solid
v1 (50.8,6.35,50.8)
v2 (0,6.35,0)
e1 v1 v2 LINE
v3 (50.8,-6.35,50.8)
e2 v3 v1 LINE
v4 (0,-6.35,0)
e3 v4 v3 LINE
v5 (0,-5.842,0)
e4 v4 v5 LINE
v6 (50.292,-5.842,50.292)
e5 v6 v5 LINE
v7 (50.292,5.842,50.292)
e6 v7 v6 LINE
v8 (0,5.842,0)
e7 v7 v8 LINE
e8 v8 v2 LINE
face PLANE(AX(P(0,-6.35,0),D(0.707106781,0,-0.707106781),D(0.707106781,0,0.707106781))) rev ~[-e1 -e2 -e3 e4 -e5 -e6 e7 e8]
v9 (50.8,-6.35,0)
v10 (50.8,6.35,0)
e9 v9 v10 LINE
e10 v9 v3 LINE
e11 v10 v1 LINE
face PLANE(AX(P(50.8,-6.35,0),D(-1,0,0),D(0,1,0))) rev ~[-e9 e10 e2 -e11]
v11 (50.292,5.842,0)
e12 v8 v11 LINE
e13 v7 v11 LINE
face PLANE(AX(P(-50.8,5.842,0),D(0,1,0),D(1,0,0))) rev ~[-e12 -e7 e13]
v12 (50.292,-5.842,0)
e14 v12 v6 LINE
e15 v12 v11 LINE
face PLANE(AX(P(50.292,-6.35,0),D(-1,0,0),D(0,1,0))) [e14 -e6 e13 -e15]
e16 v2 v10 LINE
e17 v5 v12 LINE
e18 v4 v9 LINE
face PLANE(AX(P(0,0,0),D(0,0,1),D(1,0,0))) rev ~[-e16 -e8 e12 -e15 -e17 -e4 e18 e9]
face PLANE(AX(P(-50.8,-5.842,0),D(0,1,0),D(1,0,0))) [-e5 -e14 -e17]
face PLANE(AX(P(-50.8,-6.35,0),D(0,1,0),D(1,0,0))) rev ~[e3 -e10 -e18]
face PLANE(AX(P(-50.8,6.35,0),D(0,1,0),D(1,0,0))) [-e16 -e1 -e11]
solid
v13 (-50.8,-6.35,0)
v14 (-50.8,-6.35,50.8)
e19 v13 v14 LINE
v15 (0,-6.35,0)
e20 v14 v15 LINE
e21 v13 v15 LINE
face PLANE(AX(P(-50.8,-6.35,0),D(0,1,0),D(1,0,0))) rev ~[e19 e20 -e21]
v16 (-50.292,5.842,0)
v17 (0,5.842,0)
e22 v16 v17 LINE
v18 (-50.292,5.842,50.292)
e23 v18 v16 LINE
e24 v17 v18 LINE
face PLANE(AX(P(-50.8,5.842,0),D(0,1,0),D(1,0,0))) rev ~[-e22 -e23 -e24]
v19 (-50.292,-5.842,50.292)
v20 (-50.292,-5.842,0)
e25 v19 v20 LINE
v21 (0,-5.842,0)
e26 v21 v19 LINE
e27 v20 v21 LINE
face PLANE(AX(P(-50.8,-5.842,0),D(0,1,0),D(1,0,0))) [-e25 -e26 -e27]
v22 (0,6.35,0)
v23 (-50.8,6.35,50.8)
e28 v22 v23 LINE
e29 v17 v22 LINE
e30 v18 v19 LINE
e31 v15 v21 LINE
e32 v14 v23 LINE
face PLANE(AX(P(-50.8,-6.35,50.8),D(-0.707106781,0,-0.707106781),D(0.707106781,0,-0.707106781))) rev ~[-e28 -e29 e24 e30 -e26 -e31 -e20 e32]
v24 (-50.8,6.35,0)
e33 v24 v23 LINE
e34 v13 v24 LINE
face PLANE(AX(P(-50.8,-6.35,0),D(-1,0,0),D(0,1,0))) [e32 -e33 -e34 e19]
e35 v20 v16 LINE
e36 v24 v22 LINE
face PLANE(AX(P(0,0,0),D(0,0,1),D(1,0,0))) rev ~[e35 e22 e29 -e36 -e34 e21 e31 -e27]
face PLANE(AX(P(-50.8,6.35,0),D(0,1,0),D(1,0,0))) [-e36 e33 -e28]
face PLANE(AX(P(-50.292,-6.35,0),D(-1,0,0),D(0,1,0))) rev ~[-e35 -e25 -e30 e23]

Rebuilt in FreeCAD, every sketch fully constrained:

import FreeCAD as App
import Part
import Sketcher
from FreeCAD import Vector
Q = App.Units.Quantity


def faces_at(feature, points):
    """Names of the faces that lie closest to the given points."""
    faces = feature.Shape.Faces
    near = lambda p: min(range(len(faces)), key=lambda i: faces[i].distToShape(Part.Vertex(*p))[0])
    return sorted({f"Face{near(p) + 1}" for p in points})

doc = App.newDocument("Part")
body = doc.addObject("PartDesign::Body", "Body")
body.AllowCompound = True

# Sketch on XY plane
sketch1 = body.newObject("Sketcher::SketchObject", "Sketch")
sketch1.AttachmentSupport = (doc.getObject("XY_Plane"), [""])
sketch1.MapMode = "FlatFace"
sketch1.addGeometry(Part.LineSegment(Vector(-51, 6, 0), Vector(-51, -6, 0)), False)
sketch1.addGeometry(Part.LineSegment(Vector(-51, -6, 0), Vector(51, -6, 0)), False)
sketch1.addGeometry(Part.LineSegment(Vector(51, -6, 0), Vector(51, 6, 0)), False)
sketch1.addGeometry(Part.LineSegment(Vector(51, 6, 0), Vector(-51, 6, 0)), False)
sketch1.addConstraint(Sketcher.Constraint("Coincident", 0, 2, 1, 1))
sketch1.addConstraint(Sketcher.Constraint("Coincident", 1, 2, 2, 1))
sketch1.addConstraint(Sketcher.Constraint("Coincident", 2, 2, 3, 1))
sketch1.addConstraint(Sketcher.Constraint("Coincident", 3, 2, 0, 1))
sketch1.addConstraint(Sketcher.Constraint("Vertical", 0))
sketch1.addConstraint(Sketcher.Constraint("Horizontal", 1))
sketch1.addConstraint(Sketcher.Constraint("Vertical", 2))
sketch1.addConstraint(Sketcher.Constraint("Horizontal", 3))
sketch1.addConstraint(Sketcher.Constraint("Symmetric", 0, 2, 2, 2, -1, 1))
sketch1.addConstraint(Sketcher.Constraint("DistanceX", 1, 1, 1, 2, Q("4 in")))
sketch1.addConstraint(Sketcher.Constraint("DistanceY", 0, 2, 0, 1, Q("0.5 in")))
pad1 = body.newObject("PartDesign::Pad", "Pad")
pad1.Profile = sketch1
pad1.Length = Q("2 in")
doc.recompute()

thickness = body.newObject("PartDesign::Thickness", "Thickness")
thickness.Base = (pad1, faces_at(pad1, [(0, 0, 50.8), (0, 0, 0)]))
thickness.Value = Q("0.02 in")
thickness.Reversed = True
thickness.Join = "Arc"

# Sketch on XZ plane
sketch2 = body.newObject("Sketcher::SketchObject", "Sketch001")
sketch2.AttachmentSupport = (doc.getObject("XZ_Plane"), [""])
sketch2.MapMode = "FlatFace"
sketch2.AttachmentOffset = App.Placement(Vector(0, 0, 0.25 * 25.4), App.Rotation())
sketch2.addGeometry(Part.LineSegment(Vector(-51, 51, 0), Vector(0, 0, 0)), False)
sketch2.addGeometry(Part.LineSegment(Vector(0, 0, 0), Vector(51, 51, 0)), False)
sketch2.addGeometry(Part.LineSegment(Vector(51, 51, 0), Vector(-51, 51, 0)), False)
sketch2.addConstraint(Sketcher.Constraint("Coincident", 0, 2, 1, 1))
sketch2.addConstraint(Sketcher.Constraint("Coincident", 1, 2, 2, 1))
sketch2.addConstraint(Sketcher.Constraint("Coincident", 2, 2, 0, 1))
sketch2.addConstraint(Sketcher.Constraint("Horizontal", 2))
sketch2.addConstraint(Sketcher.Constraint("Coincident", 0, 2, -1, 1))
sketch2.addConstraint(Sketcher.Constraint("Perpendicular", 0, 1))
sketch2.addConstraint(Sketcher.Constraint("Equal", 0, 1))
sketch2.addConstraint(Sketcher.Constraint("DistanceX", 2, 2, 2, 1, Q("4 in")))
pocket1 = body.newObject("PartDesign::Pocket", "Pocket")
pocket1.Profile = sketch2
pocket1.Length = Q("0.52 in")

doc.recompute()
